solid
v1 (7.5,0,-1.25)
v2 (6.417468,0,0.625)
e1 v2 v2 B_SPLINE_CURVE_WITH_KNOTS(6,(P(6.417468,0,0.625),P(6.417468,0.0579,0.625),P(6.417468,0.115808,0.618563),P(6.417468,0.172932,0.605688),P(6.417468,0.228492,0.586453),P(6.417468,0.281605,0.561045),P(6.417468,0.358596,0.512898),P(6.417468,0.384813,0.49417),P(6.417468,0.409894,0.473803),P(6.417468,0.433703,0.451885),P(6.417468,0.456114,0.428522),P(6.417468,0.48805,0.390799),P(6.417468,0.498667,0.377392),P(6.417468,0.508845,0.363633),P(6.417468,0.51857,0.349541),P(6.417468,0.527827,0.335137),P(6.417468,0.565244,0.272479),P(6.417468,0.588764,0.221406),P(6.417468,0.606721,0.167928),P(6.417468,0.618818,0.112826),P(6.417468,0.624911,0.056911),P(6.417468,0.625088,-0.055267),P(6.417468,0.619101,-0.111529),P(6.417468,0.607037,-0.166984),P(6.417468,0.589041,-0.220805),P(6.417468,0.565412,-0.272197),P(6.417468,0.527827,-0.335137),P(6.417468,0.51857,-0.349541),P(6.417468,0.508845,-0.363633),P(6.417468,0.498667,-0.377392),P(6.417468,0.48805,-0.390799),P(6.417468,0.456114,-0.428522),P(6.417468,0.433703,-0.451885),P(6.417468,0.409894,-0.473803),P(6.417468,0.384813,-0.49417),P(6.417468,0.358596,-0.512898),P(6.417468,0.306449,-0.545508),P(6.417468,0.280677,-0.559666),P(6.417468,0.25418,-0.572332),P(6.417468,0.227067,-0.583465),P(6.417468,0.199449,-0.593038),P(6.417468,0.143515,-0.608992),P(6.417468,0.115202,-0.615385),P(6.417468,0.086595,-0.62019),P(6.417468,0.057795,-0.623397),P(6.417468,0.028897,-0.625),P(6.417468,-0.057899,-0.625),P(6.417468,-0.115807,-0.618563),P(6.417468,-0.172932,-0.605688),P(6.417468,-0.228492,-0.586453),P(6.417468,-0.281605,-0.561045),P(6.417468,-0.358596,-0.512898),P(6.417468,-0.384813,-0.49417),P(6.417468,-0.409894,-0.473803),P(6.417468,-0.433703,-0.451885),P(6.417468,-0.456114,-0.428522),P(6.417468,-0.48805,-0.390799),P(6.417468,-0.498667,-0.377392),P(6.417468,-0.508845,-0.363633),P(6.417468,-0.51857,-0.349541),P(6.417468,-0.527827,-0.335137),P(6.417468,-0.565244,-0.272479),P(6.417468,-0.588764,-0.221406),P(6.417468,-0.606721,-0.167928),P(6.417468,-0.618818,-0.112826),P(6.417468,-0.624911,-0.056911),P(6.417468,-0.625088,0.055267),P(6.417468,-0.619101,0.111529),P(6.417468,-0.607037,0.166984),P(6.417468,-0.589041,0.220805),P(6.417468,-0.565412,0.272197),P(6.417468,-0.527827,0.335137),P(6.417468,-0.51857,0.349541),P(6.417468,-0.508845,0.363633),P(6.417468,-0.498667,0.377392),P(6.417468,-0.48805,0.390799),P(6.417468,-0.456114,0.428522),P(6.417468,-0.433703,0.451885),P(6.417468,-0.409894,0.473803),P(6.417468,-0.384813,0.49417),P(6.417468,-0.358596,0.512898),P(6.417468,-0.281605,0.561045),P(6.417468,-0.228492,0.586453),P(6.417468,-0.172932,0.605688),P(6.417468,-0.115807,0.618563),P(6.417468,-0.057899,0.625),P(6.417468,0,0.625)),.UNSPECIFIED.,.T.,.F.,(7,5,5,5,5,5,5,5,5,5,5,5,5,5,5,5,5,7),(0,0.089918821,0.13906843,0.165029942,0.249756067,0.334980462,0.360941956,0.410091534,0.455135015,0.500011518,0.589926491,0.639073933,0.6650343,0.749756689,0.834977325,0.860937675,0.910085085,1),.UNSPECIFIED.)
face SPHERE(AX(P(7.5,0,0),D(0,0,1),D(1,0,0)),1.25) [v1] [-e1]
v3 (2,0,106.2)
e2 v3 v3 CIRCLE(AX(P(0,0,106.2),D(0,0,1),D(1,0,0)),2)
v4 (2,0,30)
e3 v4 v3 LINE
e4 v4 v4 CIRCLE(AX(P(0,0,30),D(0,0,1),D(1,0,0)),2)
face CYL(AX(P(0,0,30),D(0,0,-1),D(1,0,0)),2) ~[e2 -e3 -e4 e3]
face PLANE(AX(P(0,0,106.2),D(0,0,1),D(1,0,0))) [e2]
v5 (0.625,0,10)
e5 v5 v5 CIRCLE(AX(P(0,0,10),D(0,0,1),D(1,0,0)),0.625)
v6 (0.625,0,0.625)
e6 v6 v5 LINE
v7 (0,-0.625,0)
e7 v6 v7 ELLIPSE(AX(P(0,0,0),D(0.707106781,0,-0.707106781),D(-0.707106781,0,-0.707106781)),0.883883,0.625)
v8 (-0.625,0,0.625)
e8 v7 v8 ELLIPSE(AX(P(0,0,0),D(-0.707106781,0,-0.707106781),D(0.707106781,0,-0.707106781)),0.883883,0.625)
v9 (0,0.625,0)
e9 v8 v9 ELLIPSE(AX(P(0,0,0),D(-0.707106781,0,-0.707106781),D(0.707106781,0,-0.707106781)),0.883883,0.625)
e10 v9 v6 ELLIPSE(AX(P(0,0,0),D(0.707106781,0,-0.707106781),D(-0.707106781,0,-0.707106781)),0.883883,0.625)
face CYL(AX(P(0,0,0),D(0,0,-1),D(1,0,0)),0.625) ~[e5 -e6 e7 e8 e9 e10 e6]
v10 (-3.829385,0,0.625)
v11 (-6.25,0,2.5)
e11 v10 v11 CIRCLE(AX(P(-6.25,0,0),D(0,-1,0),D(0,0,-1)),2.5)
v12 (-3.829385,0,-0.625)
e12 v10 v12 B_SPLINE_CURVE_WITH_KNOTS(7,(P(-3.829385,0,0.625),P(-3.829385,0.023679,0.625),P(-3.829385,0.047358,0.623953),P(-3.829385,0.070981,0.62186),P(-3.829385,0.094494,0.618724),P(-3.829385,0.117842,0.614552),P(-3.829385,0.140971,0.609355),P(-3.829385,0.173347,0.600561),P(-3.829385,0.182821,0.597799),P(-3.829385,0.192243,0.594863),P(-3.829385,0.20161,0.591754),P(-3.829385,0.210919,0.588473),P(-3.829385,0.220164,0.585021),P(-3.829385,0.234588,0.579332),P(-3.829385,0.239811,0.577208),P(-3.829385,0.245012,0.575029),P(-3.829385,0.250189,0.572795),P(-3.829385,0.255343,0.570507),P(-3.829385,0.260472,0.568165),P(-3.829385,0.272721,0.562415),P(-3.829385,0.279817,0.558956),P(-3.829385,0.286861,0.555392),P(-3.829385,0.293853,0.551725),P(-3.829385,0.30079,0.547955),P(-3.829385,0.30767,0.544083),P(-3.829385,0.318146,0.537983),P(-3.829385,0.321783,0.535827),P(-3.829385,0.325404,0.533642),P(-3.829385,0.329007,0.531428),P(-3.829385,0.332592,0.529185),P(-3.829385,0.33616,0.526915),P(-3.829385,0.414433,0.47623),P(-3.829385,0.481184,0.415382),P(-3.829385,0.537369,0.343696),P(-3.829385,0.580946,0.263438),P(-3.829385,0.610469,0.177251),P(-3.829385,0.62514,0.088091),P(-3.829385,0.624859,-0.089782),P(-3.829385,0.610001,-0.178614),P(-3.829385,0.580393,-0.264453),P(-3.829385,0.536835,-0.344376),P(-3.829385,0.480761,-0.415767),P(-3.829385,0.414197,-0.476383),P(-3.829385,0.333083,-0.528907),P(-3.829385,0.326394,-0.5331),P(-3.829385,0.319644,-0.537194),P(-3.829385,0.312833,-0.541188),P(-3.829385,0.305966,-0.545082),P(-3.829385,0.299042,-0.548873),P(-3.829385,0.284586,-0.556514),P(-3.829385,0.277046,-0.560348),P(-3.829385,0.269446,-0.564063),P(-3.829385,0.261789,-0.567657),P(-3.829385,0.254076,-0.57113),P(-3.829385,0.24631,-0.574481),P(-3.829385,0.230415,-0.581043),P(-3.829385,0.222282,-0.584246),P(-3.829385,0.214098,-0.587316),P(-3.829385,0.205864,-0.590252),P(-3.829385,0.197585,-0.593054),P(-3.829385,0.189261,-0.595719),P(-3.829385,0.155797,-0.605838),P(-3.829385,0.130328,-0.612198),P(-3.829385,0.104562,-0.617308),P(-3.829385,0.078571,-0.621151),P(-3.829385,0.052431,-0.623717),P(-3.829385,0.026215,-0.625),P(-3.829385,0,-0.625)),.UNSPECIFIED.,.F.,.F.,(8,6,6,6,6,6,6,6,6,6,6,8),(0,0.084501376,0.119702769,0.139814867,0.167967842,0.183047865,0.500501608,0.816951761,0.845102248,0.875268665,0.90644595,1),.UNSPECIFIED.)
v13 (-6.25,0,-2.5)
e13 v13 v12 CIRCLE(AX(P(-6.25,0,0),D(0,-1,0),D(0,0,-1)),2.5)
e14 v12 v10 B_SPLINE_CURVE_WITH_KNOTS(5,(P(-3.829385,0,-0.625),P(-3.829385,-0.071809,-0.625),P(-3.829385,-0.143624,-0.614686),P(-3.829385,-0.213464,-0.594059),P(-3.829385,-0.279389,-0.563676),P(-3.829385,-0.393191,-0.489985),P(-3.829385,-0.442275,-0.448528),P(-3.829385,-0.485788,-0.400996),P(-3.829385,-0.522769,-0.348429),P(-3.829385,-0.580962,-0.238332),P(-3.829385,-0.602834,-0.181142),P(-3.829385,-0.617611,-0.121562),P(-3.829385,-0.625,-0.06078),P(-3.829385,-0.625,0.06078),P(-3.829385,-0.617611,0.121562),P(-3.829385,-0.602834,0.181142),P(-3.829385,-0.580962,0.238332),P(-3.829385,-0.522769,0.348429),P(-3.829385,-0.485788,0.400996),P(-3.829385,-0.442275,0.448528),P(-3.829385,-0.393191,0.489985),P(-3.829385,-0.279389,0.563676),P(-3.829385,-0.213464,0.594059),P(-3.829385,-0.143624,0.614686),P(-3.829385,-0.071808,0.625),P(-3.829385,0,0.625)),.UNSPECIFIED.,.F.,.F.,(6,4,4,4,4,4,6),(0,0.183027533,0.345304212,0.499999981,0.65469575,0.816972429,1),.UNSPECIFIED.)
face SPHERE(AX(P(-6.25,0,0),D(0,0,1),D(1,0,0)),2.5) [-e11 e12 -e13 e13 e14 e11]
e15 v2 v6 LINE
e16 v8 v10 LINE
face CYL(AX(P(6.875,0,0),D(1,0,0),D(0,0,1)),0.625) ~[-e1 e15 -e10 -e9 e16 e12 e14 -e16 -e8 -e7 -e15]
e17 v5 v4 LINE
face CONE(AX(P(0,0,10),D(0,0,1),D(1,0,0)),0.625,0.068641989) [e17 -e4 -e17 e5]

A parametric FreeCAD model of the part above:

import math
import FreeCAD as App
import Part
import Sketcher

doc = App.newDocument("Part")
body = doc.addObject("PartDesign::Body", "Body")

sketch1 = body.newObject("Sketcher::SketchObject", "Sketch")
sketch1.AttachmentSupport = (doc.getObject("XY_Plane"), [""])
sketch1.MapMode = "FlatFace"
sketch1.addGeometry(Part.Circle(App.Vector(0, 0, 0), App.Vector(0, 0, 1), 0.6), False)
sketch1.addConstraint(Sketcher.Constraint("Coincident", 0, 3, -1, 1))
sketch1.addConstraint(Sketcher.Constraint("Diameter", 0, 1.25))
pad1 = body.newObject("PartDesign::Pad", "Pad")
pad1.Profile = sketch1
pad1.Length = 10
body2 = doc.addObject("PartDesign::Body", "Body001")

sketch2 = body2.newObject("Sketcher::SketchObject", "Sketch001")
sketch2.AttachmentSupport = (doc.getObject("XY_Plane001"), [""])
sketch2.MapMode = "FlatFace"
sketch2.AttachmentOffset = App.Placement(App.Vector(0, 0, 30), App.Rotation())
sketch2.addGeometry(Part.Circle(App.Vector(0, 0, 0), App.Vector(0, 0, 1), 2), False)
sketch2.addConstraint(Sketcher.Constraint("Coincident", 0, 3, -1, 1))
sketch2.addConstraint(Sketcher.Constraint("Diameter", 0, 4.0))
pad2 = body2.newObject("PartDesign::Pad", "Pad001")
pad2.Profile = sketch2
pad2.Length = 76.2
body3 = doc.addObject("PartDesign::Body", "Body002")

sketch3 = body3.newObject("Sketcher::SketchObject", "Sketch002")
sketch3.AttachmentSupport = (doc.getObject("XZ_Plane002"), [""])
sketch3.MapMode = "FlatFace"
sketch3.addGeometry(Part.LineSegment(App.Vector(0, 10, 0), App.Vector(0.6, 10, 0)), False)
sketch3.addGeometry(Part.LineSegment(App.Vector(0.6, 10, 0), App.Vector(2, 30, 0)), False)
sketch3.addGeometry(Part.LineSegment(App.Vector(2, 30, 0), App.Vector(0, 30, 0)), False)
sketch3.addGeometry(Part.LineSegment(App.Vector(0, 30, 0), App.Vector(0, 10, 0)), False)
sketch3.addConstraint(Sketcher.Constraint("Coincident", 0, 2, 1, 1))
sketch3.addConstraint(Sketcher.Constraint("Coincident", 1, 2, 2, 1))
sketch3.addConstraint(Sketcher.Constraint("Coincident", 2, 2, 3, 1))
sketch3.addConstraint(Sketcher.Constraint("Coincident", 3, 2, 0, 1))
sketch3.addConstraint(Sketcher.Constraint("Horizontal", 0))
sketch3.addConstraint(Sketcher.Constraint("Horizontal", 2))
sketch3.addConstraint(Sketcher.Constraint("Vertical", 3))
sketch3.addConstraint(Sketcher.Constraint("PointOnObject", 2, 2, -2))
sketch3.addConstraint(Sketcher.Constraint("DistanceX", 2, 2, 2, 1, 2.0))
sketch3.addConstraint(Sketcher.Constraint("DistanceY", 3, 2, 3, 1, 20.0))
sketch3.addConstraint(Sketcher.Constraint("DistanceY", -1, 1, 0, 2, 10.0))
sketch3.addConstraint(Sketcher.Constraint("DistanceX", 0, 1, 0, 2, 0.625))
revolution = body3.newObject("PartDesign::Revolution", "Revolution")
revolution.Profile = sketch3
revolution.ReferenceAxis = (sketch3, ["V_Axis"])
revolution.Angle = 360
body4 = doc.addObject("PartDesign::Body", "Body003")

sketch4 = body4.newObject("Sketcher::SketchObject", "Sketch003")
sketch4.AttachmentSupport = (doc.getObject("XZ_Plane003"), [""])
sketch4.MapMode = "FlatFace"
sketch4.addGeometry(Part.ArcOfCircle(Part.Circle(App.Vector(7.5, 0, 0), App.Vector(0, 0, 1), 1.2), math.radians(-90), math.radians(90)), False)
sketch4.addGeometry(Part.LineSegment(App.Vector(7.5, 1.2, 0), App.Vector(7.5, -1.2, 0)), False)
sketch4.addGeometry(Part.LineSegment(App.Vector(7.5, -1.2, 0), App.Vector(7.5, 1.2, 0)), True)
sketch4.addConstraint(Sketcher.Constraint("Coincident", 0, 1, 1, 2))
sketch4.addConstraint(Sketcher.Constraint("Coincident", 1, 1, 0, 2))
sketch4.addConstraint(Sketcher.Constraint("Vertical", 1))
sketch4.addConstraint(Sketcher.Constraint("Vertical", 2))
sketch4.addConstraint(Sketcher.Constraint("Coincident", 2, 1, 0, 1))
sketch4.addConstraint(Sketcher.Constraint("PointOnObject", 0, 3, -1))
sketch4.addConstraint(Sketcher.Constraint("Equal", 1, 2))
sketch4.addConstraint(Sketcher.Constraint("Radius", 0, 1.25))
sketch4.addConstraint(Sketcher.Constraint("DistanceX", -1, 1, 0, 3, 7.5))
sketch4.addConstraint(Sketcher.Constraint("DistanceX", -1, 1, 0, 1, 7.5))
revolution2 = body4.newObject("PartDesign::Revolution", "Revolution001")
revolution2.Profile = sketch4
revolution2.ReferenceAxis = (sketch4, ["Axis0"])
revolution2.Angle = 360
body5 = doc.addObject("PartDesign::Body", "Body004")

sketch5 = body5.newObject("Sketcher::SketchObject", "Sketch004")
sketch5.AttachmentSupport = (doc.getObject("XY_Plane004"), [""])
sketch5.MapMode = "FlatFace"
sketch5.addGeometry(Part.Circle(App.Vector(0, 0, 0), App.Vector(0, 0, 1), 0.6), False)
sketch5.addConstraint(Sketcher.Constraint("Coincident", 0, 3, -1, 1))
sketch5.addConstraint(Sketcher.Constraint("Diameter", 0, 1.25))
pad3 = body5.newObject("PartDesign::Pad", "Pad002")
pad3.Profile = sketch5
pad3.Length = 13.75
body6 = doc.addObject("PartDesign::Body", "Body005")
doc.recompute()

body5.Placement = App.Placement(App.Vector(0, 0, 0), App.Rotation(App.Vector(0, 1, 0), 270))
boolean = body6.newObject("PartDesign::Boolean", "Boolean")
boolean.Type = "Fuse"
boolean.addObjects([body5])
body7 = doc.addObject("PartDesign::Body", "Body006")
doc.recompute()

body6.Placement = App.Placement(App.Vector(6.875, 0, 0), App.Rotation(App.Vector(0, 0, 1), 0))
boolean2 = body7.newObject("PartDesign::Boolean", "Boolean001")
boolean2.Type = "Fuse"
boolean2.addObjects([body6])
body8 = doc.addObject("PartDesign::Body", "Body007")
body8.AllowCompound = True

sketch6 = body8.newObject("Sketcher::SketchObject", "Sketch005")
sketch6.AttachmentSupport = (doc.getObject("XZ_Plane007"), [""])
sketch6.MapMode = "FlatFace"
sketch6.addGeometry(Part.ArcOfCircle(Part.Circle(App.Vector(-6.2, 0, 0), App.Vector(0, 0, 1), 2.5), math.radians(-90), math.radians(90)), False)
sketch6.addGeometry(Part.LineSegment(App.Vector(-6.2, 2.5, 0), App.Vector(-6.2, -2.5, 0)), False)
sketch6.addGeometry(Part.LineSegment(App.Vector(-6.2, -2.5, 0), App.Vector(-6.2, 2.5, 0)), True)
sketch6.addConstraint(Sketcher.Constraint("Coincident", 0, 1, 1, 2))
sketch6.addConstraint(Sketcher.Constraint("Coincident", 1, 1, 0, 2))
sketch6.addConstraint(Sketcher.Constraint("Vertical", 1))
sketch6.addConstraint(Sketcher.Constraint("Vertical", 2))
sketch6.addConstraint(Sketcher.Constraint("Coincident", 2, 1, 0, 1))
sketch6.addConstraint(Sketcher.Constraint("PointOnObject", 0, 3, -1))
sketch6.addConstraint(Sketcher.Constraint("Equal", 1, 2))
sketch6.addConstraint(Sketcher.Constraint("Radius", 0, 2.5))
sketch6.addConstraint(Sketcher.Constraint("DistanceX", 0, 3, -1, 1, 6.25))
sketch6.addConstraint(Sketcher.Constraint("DistanceX", 0, 1, -1, 1, 6.25))
revolution3 = body8.newObject("PartDesign::Revolution", "Revolution002")
revolution3.Profile = sketch6
revolution3.ReferenceAxis = (sketch6, ["Axis0"])
revolution3.Angle = 360
doc.recompute()

boolean3 = body8.newObject("PartDesign::Boolean", "Boolean002")
boolean3.Type = "Fuse"
boolean3.addObjects([body])
doc.recompute()

boolean4 = body8.newObject("PartDesign::Boolean", "Boolean003")
boolean4.Type = "Fuse"
boolean4.addObjects([body2])
doc.recompute()

boolean5 = body8.newObject("PartDesign::Boolean", "Boolean004")
boolean5.Type = "Fuse"
boolean5.addObjects([body3])
doc.recompute()

boolean6 = body8.newObject("PartDesign::Boolean", "Boolean005")
boolean6.Type = "Fuse"
boolean6.addObjects([body4])
doc.recompute()

boolean7 = body8.newObject("PartDesign::Boolean", "Boolean006")
boolean7.Type = "Fuse"
boolean7.addObjects([body7])

doc.recompute()
